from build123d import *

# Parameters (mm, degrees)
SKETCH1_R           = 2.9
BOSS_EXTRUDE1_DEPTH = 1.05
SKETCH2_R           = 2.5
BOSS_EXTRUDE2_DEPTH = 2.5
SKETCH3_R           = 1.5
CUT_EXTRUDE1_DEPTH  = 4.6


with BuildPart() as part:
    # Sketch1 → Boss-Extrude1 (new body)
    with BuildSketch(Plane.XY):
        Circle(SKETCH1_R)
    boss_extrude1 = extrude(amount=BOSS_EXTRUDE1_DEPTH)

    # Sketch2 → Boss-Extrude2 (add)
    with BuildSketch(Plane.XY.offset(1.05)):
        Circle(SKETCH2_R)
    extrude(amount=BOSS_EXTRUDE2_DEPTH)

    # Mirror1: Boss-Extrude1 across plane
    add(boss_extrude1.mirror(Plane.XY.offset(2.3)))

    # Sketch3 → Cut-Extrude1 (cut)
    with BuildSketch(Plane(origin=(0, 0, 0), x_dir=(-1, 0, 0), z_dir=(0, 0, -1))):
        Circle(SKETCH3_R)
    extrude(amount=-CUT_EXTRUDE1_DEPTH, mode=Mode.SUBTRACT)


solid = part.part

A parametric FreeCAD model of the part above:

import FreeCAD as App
import Part
import Sketcher

V = App.Vector

doc = App.newDocument("Part")
body = doc.addObject("PartDesign::Body", "Body")

# Sketch on XY plane
sketch1 = doc.addObject("Sketcher::SketchObject", "Sketch")
body.addObject(sketch1)
sketch1.AttachmentSupport = (doc.XY_Plane, [""])
sketch1.MapMode = "FlatFace"
sketch1.addGeometry(Part.Circle(V(0, 0, 0), V(0, 0, 1), 2.9), False)
sketch1.addConstraint([
    Sketcher.Constraint("Coincident", 0, 3, -1, 1),
    Sketcher.Constraint("Diameter", 0, 5.8),
])
pad1 = doc.addObject("PartDesign::Pad", "Pad")
body.addObject(pad1)
pad1.Profile = sketch1
pad1.Length = 1.05

# Sketch on XY plane
sketch2 = doc.addObject("Sketcher::SketchObject", "Sketch001")
body.addObject(sketch2)
sketch2.AttachmentSupport = (doc.XY_Plane, [""])
sketch2.MapMode = "FlatFace"
sketch2.AttachmentOffset = App.Placement(V(0, 0, 1.05), App.Rotation())
sketch2.addGeometry(Part.Circle(V(0, 0, 0), V(0, 0, 1), 2.5), False)
sketch2.addConstraint([
    Sketcher.Constraint("Coincident", 0, 3, -1, 1),
    Sketcher.Constraint("Diameter", 0, 5.0),
])
pad2 = doc.addObject("PartDesign::Pad", "Pad001")
body.addObject(pad2)
pad2.Profile = sketch2
pad2.Length = 2.5
doc.recompute()

datumplane = doc.addObject("PartDesign::Plane", "DatumPlane")
body.addObject(datumplane)
datumplane.AttachmentSupport = (doc.XY_Plane, [""])
datumplane.MapMode = "FlatFace"
datumplane.AttachmentOffset = App.Placement(V(0, 0, 2.3), App.Rotation())
mirrored = doc.addObject("PartDesign::Mirrored", "Mirrored")
body.addObject(mirrored)
mirrored.Originals = [pad1]
mirrored.MirrorPlane = (datumplane, [""])
body.Tip = mirrored

# Sketch on XY plane
sketch3 = doc.addObject("Sketcher::SketchObject", "Sketch002")
body.addObject(sketch3)
sketch3.AttachmentSupport = (doc.XY_Plane, [""])
sketch3.MapMode = "FlatFace"
sketch3.addGeometry(Part.Circle(V(0, 0, 0), V(0, 0, 1), 1.5), False)
sketch3.addConstraint([
    Sketcher.Constraint("Coincident", 0, 3, -1, 1),
    Sketcher.Constraint("Diameter", 0, 3.0),
])
pocket1 = doc.addObject("PartDesign::Pocket", "Pocket")
body.addObject(pocket1)
pocket1.Profile = sketch3
pocket1.Length = 4.6
pocket1.Reversed = True

doc.recompute()
